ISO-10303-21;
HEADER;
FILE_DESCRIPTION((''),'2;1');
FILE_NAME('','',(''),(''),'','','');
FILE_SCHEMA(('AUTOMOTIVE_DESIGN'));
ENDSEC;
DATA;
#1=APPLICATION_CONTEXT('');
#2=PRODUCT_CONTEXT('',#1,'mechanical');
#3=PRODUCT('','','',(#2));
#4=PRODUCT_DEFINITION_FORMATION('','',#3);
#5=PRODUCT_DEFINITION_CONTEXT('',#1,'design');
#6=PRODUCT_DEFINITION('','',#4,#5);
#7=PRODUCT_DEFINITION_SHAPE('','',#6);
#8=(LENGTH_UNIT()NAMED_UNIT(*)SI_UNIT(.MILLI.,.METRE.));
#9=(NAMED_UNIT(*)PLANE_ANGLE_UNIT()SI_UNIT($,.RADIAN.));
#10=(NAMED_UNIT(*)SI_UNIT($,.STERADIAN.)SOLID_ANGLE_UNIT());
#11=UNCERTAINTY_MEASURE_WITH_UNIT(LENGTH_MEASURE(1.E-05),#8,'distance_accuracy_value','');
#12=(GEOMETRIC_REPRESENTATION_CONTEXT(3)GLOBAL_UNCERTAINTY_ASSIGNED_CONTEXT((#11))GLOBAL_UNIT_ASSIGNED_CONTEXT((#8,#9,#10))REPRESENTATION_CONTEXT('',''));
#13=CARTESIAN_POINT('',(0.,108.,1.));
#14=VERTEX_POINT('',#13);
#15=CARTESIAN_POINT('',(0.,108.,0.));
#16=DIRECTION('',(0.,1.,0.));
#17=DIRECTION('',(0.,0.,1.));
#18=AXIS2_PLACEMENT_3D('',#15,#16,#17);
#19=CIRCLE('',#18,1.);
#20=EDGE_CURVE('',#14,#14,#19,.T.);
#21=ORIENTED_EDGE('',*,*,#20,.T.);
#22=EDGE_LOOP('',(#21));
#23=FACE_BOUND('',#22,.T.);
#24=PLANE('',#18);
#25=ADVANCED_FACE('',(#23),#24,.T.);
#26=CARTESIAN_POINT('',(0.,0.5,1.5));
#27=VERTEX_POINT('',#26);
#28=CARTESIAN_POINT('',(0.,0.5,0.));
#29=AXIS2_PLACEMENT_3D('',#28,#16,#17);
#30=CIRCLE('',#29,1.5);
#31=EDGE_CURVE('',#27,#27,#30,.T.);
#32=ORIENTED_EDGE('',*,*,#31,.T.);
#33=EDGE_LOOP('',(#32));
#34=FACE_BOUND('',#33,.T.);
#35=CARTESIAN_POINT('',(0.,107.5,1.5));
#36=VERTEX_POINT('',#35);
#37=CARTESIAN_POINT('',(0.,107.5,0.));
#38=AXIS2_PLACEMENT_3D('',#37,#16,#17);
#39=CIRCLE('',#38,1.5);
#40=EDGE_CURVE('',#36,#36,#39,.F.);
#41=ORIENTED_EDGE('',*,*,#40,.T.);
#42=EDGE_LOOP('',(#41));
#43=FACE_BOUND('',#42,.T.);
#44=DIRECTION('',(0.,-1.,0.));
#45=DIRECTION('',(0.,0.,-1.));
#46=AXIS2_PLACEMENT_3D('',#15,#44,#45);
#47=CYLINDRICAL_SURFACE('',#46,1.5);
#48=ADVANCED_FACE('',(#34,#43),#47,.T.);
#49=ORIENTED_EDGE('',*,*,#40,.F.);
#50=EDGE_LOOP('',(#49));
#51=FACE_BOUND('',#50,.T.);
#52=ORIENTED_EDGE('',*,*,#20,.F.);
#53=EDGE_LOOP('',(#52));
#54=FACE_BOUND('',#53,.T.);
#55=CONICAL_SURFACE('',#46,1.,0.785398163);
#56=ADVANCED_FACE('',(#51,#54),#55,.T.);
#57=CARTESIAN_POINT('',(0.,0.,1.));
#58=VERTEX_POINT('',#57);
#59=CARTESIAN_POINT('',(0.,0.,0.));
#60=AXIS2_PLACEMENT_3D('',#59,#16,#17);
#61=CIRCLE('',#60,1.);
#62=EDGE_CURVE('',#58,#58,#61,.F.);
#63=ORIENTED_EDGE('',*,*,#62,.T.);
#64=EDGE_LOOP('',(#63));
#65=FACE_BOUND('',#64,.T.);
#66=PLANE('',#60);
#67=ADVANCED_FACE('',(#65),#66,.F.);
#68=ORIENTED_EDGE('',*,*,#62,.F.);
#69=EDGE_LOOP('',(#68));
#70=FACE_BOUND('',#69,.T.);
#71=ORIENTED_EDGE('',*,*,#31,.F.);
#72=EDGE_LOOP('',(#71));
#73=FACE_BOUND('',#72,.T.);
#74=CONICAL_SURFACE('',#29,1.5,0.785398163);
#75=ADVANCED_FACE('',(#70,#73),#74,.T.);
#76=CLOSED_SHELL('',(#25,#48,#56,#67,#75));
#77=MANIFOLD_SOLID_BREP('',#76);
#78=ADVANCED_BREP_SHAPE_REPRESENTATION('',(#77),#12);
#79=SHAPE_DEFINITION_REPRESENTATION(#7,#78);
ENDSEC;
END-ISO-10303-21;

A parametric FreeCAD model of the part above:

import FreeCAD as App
import Part
import Sketcher

V = App.Vector


def edges_at(feature, points):
    """Names of the edges that pass closest to the given points."""
    edges = feature.Shape.Edges
    near = lambda p: min(range(len(edges)), key=lambda i: edges[i].distToShape(Part.Vertex(*p))[0])
    return sorted({f"Edge{near(p) + 1}" for p in points})

doc = App.newDocument("Part")
params = doc.addObject("Spreadsheet::Sheet", "Params")
for row, (alias, value) in enumerate([
    ("sketch1_diameter", "3 mm"),
    ("pad1_length", "108 mm"),
    ("chamfer_size", "0.5 mm"),
], start=1):
    params.set(f"A{row}", alias)
    params.set(f"B{row}", "=" + value)
    params.setAlias(f"B{row}", alias)

body = doc.addObject("PartDesign::Body", "Body")

# Sketch on XZ plane
sketch1 = body.newObject("Sketcher::SketchObject", "Sketch")
sketch1.AttachmentSupport = (doc.getObject("XZ_Plane"), [""])
sketch1.MapMode = "FlatFace"
sketch1.addGeometry(Part.Circle(V(0, 0, 0), V(0, 0, 1), 1.5), False)
sketch1.addConstraint(Sketcher.Constraint("Coincident", 0, 3, -1, 1))
sketch1.addConstraint(Sketcher.Constraint("Diameter", 0, 3.0))
sketch1.setExpression("Constraints[1]", "Params.sketch1_diameter")
pad1 = body.newObject("PartDesign::Pad", "Pad")
pad1.Profile = sketch1
pad1.setExpression("Length", "Params.pad1_length")
pad1.Reversed = True
doc.recompute()

chamfer = body.newObject("PartDesign::Chamfer", "Chamfer")
chamfer.Base = (pad1, edges_at(pad1, [(-1.5, 0, 0), (-1.5, 108, 0)]))
chamfer.setExpression("Size", "Params.chamfer_size")

doc.recompute()
